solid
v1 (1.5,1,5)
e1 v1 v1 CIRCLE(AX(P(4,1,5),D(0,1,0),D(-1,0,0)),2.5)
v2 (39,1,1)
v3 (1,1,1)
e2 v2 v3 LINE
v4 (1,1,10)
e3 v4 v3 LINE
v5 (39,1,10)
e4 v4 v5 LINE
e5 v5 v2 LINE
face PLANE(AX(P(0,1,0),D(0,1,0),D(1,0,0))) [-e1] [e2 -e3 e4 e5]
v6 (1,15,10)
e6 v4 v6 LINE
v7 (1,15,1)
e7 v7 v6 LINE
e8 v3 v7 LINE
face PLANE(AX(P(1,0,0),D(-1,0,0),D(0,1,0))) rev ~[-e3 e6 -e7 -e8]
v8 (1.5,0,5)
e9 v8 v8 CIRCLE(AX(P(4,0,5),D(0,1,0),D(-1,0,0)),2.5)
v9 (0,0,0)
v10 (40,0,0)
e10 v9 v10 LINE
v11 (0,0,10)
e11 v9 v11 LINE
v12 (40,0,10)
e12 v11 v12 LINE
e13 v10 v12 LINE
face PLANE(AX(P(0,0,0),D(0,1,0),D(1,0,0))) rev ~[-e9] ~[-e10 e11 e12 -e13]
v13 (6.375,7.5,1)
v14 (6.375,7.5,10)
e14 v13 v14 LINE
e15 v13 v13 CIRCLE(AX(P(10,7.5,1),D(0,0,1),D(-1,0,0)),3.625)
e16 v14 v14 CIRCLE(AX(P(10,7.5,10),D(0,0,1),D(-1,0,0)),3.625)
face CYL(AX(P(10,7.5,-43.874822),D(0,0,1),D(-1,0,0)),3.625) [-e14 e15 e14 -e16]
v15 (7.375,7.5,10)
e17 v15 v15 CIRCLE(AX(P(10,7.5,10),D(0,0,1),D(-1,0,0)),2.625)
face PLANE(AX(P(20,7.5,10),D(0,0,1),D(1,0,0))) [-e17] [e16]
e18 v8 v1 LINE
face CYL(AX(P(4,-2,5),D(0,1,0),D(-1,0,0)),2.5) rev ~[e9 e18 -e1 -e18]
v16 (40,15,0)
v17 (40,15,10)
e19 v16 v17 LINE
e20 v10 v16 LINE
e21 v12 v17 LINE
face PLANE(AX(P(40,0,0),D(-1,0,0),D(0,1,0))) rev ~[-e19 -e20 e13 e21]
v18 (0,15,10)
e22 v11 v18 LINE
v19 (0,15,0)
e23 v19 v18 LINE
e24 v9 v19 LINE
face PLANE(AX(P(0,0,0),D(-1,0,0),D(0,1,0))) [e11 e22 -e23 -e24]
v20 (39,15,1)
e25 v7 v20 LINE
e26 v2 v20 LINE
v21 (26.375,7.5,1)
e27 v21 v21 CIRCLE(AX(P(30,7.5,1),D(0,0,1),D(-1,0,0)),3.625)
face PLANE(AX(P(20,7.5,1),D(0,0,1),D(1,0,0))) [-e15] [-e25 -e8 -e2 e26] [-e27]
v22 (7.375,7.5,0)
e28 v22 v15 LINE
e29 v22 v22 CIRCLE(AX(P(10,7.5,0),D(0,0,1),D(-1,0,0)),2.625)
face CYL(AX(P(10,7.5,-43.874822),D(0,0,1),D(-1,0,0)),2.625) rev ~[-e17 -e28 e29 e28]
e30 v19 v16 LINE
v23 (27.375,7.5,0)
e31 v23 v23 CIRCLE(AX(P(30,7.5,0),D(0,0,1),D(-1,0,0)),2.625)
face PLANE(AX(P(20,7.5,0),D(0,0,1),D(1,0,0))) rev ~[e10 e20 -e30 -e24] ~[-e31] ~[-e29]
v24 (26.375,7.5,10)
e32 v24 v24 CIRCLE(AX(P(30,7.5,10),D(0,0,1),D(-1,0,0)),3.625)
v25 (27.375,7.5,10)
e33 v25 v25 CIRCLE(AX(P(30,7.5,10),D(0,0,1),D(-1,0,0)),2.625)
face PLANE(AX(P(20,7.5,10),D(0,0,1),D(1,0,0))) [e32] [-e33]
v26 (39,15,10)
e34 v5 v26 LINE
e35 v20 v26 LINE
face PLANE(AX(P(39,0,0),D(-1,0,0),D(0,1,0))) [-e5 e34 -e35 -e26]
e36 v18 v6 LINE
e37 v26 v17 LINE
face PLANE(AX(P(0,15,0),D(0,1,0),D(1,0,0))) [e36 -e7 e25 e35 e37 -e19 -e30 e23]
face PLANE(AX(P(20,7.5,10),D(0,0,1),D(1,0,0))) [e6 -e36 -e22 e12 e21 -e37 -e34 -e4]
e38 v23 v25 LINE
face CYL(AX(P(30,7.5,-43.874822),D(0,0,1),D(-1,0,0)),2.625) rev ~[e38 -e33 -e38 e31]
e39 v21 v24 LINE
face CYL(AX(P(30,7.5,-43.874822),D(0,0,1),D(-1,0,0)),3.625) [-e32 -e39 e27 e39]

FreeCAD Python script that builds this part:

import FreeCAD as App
import Part
import Sketcher
from FreeCAD import Vector


def faces_at(feature, points):
    """Names of the faces that lie closest to the given points."""
    faces = feature.Shape.Faces
    near = lambda p: min(range(len(faces)), key=lambda i: faces[i].distToShape(Part.Vertex(*p))[0])
    return sorted({f"Face{near(p) + 1}" for p in points})


def add_polygon(sketch, points):
    """Adds a closed chain of lines whose ends are joined by coincident constraints."""
    first, n = sketch.GeometryCount, len(points)
    for a, b in zip(points, points[1:] + points[:1]):
        sketch.addGeometry(Part.LineSegment(App.Vector(*a, 0), App.Vector(*b, 0)), False)
    for i in range(n):
        sketch.addConstraint(Sketcher.Constraint("Coincident", first + i, 2, first + (i + 1) % n, 1))

doc = App.newDocument("Part")
body = doc.addObject("PartDesign::Body", "Body")

# Sketch on XY plane
sketch1 = body.newObject("Sketcher::SketchObject", "Sketch")
sketch1.AttachmentSupport = (doc.getObject("XY_Plane"), [""])
sketch1.MapMode = "FlatFace"
add_polygon(sketch1, [(0, 15), (0, 0), (40, 0), (40, 15)])  # lines 0-3
sketch1.addConstraint([
    Sketcher.Constraint("Vertical", 0),
    Sketcher.Constraint("Horizontal", 1),
    Sketcher.Constraint("Vertical", 2),
    Sketcher.Constraint("Horizontal", 3),
    Sketcher.Constraint("Coincident", 0, 2, -1, 1),
    Sketcher.Constraint("DistanceX", 1, 1, 1, 2, 40.0),
    Sketcher.Constraint("DistanceY", 0, 2, 0, 1, 15.0),
])
pad1 = body.newObject("PartDesign::Pad", "Pad")
pad1.Profile = sketch1
pad1.Length = 10

# Sketch on XY plane
sketch2 = body.newObject("Sketcher::SketchObject", "Sketch001")
sketch2.AttachmentSupport = (doc.getObject("XY_Plane"), [""])
sketch2.MapMode = "FlatFace"
sketch2.addGeometry([
    Part.Circle(Vector(10, 7.5, 0), Vector(0, 0, 1), 2.625),
    Part.Circle(Vector(30, 7.5, 0), Vector(0, 0, 1), 2.625),
], False)
sketch2.addConstraint([
    Sketcher.Constraint("Equal", 0, 1),
    Sketcher.Constraint("Horizontal", 0, 3, 1, 3),
    Sketcher.Constraint("Diameter", 0, 5.25),
    Sketcher.Constraint("DistanceX", -1, 1, 0, 3, 10.0),
    Sketcher.Constraint("DistanceX", -1, 1, 1, 3, 30.0),
    Sketcher.Constraint("DistanceY", -1, 1, 0, 3, 7.5),
])
doc.recompute()
hole = body.newObject("PartDesign::Hole", "Hole")
hole.Profile = sketch2
hole.ThreadType = "None"
hole.Diameter = 5.25
hole.DepthType = "ThroughAll"
hole.Reversed = True
doc.recompute()

thickness = body.newObject("PartDesign::Thickness", "Thickness")
thickness.Base = (hole, faces_at(hole, [(20, 15, 5), (20, 7.5, 10)]))
thickness.Value = 1
thickness.Reversed = True
thickness.Join = "Arc"

# Sketch on XZ plane
sketch3 = body.newObject("Sketcher::SketchObject", "Sketch002")
sketch3.AttachmentSupport = (doc.getObject("XZ_Plane"), [""])
sketch3.MapMode = "FlatFace"
sketch3.addGeometry(Part.Circle(Vector(4, 5, 0), Vector(0, 0, 1), 2.5), False)
sketch3.addConstraint([
    Sketcher.Constraint("Diameter", 0, 5.0),
    Sketcher.Constraint("DistanceX", -1, 1, 0, 3, 4.0),
    Sketcher.Constraint("DistanceY", -1, 1, 0, 3, 5.0),
])
doc.recompute()
hole2 = body.newObject("PartDesign::Hole", "Hole001")
hole2.Profile = sketch3
hole2.ThreadType = "None"
hole2.Diameter = 5
hole2.DepthType = "Dimension"
hole2.Depth = 2
hole2.DrillPoint = "Angled"
hole2.DrillPointAngle = 118

doc.recompute()
